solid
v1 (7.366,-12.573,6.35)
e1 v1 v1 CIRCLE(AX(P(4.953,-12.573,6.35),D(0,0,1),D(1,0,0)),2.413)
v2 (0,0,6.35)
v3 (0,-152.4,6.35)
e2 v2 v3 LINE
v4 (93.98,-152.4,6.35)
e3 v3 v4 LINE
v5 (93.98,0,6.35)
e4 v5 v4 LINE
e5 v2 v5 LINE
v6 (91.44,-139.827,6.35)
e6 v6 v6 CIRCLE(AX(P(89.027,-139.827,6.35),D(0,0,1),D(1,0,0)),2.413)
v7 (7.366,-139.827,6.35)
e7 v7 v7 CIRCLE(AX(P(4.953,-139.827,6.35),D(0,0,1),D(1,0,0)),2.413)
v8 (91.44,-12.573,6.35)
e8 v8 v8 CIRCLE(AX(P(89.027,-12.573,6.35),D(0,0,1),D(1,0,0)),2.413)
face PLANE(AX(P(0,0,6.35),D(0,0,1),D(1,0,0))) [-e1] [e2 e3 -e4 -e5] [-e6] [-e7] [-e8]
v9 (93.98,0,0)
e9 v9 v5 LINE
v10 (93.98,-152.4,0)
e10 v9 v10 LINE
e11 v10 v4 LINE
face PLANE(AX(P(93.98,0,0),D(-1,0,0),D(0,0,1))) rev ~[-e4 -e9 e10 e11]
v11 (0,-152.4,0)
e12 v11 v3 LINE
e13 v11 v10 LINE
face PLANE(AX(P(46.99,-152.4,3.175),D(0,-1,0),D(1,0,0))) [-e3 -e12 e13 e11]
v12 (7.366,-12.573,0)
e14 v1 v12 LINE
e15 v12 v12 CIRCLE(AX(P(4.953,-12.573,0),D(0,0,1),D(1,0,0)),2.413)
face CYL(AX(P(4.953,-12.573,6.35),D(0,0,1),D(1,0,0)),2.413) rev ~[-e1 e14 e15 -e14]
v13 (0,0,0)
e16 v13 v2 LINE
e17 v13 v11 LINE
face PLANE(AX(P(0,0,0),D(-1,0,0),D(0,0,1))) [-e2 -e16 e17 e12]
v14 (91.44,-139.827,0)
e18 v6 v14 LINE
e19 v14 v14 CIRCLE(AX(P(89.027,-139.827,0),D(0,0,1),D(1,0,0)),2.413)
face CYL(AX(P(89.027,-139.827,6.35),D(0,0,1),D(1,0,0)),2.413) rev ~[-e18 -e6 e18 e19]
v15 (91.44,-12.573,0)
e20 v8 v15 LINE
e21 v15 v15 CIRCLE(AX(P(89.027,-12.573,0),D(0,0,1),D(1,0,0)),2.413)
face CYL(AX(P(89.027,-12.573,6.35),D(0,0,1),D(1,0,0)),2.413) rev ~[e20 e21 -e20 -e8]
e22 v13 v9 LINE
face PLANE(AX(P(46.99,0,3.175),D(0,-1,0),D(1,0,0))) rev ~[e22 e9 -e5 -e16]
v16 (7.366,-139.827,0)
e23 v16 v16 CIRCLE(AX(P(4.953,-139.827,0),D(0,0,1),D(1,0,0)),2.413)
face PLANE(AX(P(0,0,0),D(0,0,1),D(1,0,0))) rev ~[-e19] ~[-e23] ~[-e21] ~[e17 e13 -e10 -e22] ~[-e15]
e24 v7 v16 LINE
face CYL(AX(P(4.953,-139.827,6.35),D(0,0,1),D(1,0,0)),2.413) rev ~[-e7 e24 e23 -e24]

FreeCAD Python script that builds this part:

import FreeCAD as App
import Part
import Sketcher
from FreeCAD import Vector
Q = App.Units.Quantity


def add_polygon(sketch, points):
    """Adds a closed chain of lines whose ends are joined by coincident constraints."""
    first, n = sketch.GeometryCount, len(points)
    for a, b in zip(points, points[1:] + points[:1]):
        sketch.addGeometry(Part.LineSegment(App.Vector(*a, 0), App.Vector(*b, 0)), False)
    for i in range(n):
        sketch.addConstraint(Sketcher.Constraint("Coincident", first + i, 2, first + (i + 1) % n, 1))

doc = App.newDocument("Part")
body = doc.addObject("PartDesign::Body", "Body")

sketch1 = doc.addObject("Sketcher::SketchObject", "Sketch")
body.addObject(sketch1)
sketch1.AttachmentSupport = (doc.XZ_Plane, [""])
sketch1.MapMode = "FlatFace"
add_polygon(sketch1, [(0, 6), (0, 0), (94, 0), (94, 6)])
sketch1.addConstraint(Sketcher.Constraint("Vertical", 0))
sketch1.addConstraint(Sketcher.Constraint("Horizontal", 1))
sketch1.addConstraint(Sketcher.Constraint("Vertical", 2))
sketch1.addConstraint(Sketcher.Constraint("Horizontal", 3))
sketch1.addConstraint(Sketcher.Constraint("Coincident", 0, 2, -1, 1))
sketch1.addConstraint(Sketcher.Constraint("DistanceX", 1, 1, 1, 2, Q("3.7 in")))
sketch1.addConstraint(Sketcher.Constraint("DistanceY", 0, 2, 0, 1, Q("0.25 in")))
pad1 = doc.addObject("PartDesign::Pad", "Pad")
body.addObject(pad1)
pad1.Profile = sketch1
pad1.Length = Q("6 in")

sketch2 = doc.addObject("Sketcher::SketchObject", "Sketch001")
body.addObject(sketch2)
sketch2.AttachmentSupport = (doc.XY_Plane, [""])
sketch2.MapMode = "FlatFace"
sketch2.AttachmentOffset = App.Placement(Vector(0, 0, 0.25 * 25.4), App.Rotation())
sketch2.addGeometry(Part.Circle(Vector(89, -12.6, 0), Vector(0, 0, 1), 2.4), False)
sketch2.addGeometry(Part.Circle(Vector(5, -12.6, 0), Vector(0, 0, 1), 2.4), False)
sketch2.addGeometry(Part.Circle(Vector(89, -139.8, 0), Vector(0, 0, 1), 2.4), False)
sketch2.addGeometry(Part.Circle(Vector(5, -139.8, 0), Vector(0, 0, 1), 2.4), False)
sketch2.addConstraint(Sketcher.Constraint("Equal", 0, 1))
sketch2.addConstraint(Sketcher.Constraint("Equal", 1, 2))
sketch2.addConstraint(Sketcher.Constraint("Equal", 2, 3))
sketch2.addConstraint(Sketcher.Constraint("Horizontal", 0, 3, 1, 3))
sketch2.addConstraint(Sketcher.Constraint("Horizontal", 2, 3, 3, 3))
sketch2.addConstraint(Sketcher.Constraint("Vertical", 0, 3, 2, 3))
sketch2.addConstraint(Sketcher.Constraint("Vertical", 1, 3, 3, 3))
sketch2.addConstraint(Sketcher.Constraint("Diameter", 0, Q("0.19 in")))
sketch2.addConstraint(Sketcher.Constraint("DistanceX", 1, 3, 0, 3, Q("3.31 in")))
sketch2.addConstraint(Sketcher.Constraint("DistanceY", 2, 3, 0, 3, Q("5.01 in")))
sketch2.addConstraint(Sketcher.Constraint("DistanceX", -1, 1, 0, 3, Q("3.505 in")))
sketch2.addConstraint(Sketcher.Constraint("DistanceY", 0, 3, -1, 1, Q("0.495 in")))
pocket1 = doc.addObject("PartDesign::Pocket", "Pocket")
body.addObject(pocket1)
pocket1.Profile = sketch2
pocket1.Type = "ThroughAll"

doc.recompute()
